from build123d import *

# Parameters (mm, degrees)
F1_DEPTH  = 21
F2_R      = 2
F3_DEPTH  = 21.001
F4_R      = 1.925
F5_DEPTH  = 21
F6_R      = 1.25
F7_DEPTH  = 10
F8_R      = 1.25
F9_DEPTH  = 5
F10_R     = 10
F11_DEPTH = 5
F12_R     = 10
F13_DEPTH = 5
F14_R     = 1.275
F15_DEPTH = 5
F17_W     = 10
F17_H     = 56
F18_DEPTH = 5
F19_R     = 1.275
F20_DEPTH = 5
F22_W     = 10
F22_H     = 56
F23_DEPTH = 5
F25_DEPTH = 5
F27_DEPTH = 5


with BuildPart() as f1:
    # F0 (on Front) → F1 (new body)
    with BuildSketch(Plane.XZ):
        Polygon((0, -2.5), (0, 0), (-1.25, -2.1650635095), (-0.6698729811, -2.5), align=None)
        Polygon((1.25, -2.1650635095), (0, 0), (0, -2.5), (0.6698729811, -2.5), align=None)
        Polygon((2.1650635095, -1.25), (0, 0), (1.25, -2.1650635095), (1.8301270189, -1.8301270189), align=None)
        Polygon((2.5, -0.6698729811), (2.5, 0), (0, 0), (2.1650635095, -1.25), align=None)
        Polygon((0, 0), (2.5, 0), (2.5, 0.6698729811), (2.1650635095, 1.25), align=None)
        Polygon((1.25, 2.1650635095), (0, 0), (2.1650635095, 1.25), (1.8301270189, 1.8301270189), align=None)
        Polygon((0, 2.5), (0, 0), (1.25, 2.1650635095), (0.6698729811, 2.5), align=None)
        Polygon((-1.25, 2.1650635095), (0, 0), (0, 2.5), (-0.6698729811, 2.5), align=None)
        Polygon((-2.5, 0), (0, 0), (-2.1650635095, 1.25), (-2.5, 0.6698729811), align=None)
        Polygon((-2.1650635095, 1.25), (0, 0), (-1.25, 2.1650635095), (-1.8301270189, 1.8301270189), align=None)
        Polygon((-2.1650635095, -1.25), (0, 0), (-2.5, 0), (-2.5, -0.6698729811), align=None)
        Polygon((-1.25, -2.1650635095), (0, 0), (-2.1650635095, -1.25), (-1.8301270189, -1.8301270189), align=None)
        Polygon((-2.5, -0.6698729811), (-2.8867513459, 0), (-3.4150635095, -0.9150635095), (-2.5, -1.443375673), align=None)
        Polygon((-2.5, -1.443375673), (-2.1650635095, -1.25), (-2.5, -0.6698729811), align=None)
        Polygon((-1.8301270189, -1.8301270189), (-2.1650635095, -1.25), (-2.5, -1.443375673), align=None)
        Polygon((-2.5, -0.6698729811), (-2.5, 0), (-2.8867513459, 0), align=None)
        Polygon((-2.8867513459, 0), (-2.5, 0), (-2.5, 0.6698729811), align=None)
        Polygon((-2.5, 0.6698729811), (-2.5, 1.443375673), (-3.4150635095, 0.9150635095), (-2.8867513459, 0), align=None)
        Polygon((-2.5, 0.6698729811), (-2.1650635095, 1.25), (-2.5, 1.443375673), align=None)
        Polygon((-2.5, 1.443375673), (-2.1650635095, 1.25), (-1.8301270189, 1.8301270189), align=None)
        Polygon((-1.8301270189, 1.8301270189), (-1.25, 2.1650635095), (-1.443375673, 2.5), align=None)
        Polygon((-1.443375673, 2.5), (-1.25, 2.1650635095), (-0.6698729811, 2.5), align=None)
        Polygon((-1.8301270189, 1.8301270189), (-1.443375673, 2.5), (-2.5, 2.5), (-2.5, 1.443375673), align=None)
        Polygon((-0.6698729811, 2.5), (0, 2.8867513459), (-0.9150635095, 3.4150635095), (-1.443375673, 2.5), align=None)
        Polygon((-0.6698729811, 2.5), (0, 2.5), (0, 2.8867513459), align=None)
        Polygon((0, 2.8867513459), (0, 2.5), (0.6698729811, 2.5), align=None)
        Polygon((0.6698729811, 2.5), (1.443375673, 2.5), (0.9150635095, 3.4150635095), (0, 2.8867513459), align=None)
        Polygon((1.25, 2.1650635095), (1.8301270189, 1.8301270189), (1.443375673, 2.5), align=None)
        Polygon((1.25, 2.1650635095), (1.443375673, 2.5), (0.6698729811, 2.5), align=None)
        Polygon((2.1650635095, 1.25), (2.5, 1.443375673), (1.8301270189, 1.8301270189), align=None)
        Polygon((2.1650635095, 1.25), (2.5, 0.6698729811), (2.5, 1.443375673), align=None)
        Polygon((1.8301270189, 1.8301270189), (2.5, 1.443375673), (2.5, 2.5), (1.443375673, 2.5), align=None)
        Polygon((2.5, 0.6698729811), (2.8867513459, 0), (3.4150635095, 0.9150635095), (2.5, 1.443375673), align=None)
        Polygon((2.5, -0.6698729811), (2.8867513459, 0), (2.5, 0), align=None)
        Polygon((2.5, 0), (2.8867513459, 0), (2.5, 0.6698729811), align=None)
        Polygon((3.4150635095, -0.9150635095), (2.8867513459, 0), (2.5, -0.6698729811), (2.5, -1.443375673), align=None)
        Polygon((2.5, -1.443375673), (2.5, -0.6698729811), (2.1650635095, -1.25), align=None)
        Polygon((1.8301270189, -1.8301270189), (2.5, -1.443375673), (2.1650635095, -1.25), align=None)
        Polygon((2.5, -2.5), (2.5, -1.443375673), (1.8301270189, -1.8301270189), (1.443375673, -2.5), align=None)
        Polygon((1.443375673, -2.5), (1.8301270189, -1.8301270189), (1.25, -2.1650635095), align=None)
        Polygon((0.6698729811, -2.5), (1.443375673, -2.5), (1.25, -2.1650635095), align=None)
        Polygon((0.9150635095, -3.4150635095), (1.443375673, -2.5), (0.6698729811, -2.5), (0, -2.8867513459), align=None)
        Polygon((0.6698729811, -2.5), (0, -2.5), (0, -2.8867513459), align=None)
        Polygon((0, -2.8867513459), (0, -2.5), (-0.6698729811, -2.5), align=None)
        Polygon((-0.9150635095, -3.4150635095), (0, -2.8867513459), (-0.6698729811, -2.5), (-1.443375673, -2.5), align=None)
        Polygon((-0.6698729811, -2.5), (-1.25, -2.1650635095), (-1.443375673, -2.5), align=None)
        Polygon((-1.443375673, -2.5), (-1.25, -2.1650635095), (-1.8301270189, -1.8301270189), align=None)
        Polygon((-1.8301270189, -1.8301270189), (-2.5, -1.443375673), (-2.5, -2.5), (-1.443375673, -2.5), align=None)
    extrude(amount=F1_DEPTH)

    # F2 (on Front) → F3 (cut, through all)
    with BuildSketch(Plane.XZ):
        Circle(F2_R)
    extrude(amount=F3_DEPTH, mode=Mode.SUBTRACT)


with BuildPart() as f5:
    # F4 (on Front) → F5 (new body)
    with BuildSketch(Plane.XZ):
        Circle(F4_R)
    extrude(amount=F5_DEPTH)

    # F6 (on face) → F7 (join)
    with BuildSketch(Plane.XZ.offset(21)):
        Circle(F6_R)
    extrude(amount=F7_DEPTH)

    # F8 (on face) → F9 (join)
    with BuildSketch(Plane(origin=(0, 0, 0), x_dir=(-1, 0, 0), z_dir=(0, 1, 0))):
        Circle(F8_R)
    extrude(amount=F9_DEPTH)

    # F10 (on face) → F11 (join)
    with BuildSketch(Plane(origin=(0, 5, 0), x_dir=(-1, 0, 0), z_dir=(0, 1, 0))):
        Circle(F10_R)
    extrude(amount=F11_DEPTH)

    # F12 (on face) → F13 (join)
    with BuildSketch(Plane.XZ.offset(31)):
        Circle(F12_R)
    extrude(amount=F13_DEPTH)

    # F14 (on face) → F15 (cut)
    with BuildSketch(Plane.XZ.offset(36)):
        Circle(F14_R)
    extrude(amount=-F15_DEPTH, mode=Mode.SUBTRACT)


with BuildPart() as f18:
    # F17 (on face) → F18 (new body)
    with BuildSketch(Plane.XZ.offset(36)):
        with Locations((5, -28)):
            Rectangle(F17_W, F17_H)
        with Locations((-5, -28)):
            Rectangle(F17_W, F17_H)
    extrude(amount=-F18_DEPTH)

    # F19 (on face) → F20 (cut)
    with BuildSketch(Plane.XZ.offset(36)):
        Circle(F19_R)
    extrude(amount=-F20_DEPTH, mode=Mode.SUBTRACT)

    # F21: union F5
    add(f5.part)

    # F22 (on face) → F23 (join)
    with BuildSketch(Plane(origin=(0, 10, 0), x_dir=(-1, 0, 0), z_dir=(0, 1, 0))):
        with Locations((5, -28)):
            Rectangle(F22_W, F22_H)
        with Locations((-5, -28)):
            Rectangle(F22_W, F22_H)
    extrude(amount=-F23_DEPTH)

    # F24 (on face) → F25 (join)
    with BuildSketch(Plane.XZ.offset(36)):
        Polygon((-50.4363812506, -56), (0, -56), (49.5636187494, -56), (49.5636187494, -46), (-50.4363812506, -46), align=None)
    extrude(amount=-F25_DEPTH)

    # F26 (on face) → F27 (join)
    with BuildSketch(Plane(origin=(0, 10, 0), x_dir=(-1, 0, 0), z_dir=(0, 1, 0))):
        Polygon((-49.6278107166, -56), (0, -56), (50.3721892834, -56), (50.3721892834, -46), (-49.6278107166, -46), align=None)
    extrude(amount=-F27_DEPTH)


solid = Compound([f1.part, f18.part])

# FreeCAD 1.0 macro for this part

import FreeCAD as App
import Part
import Sketcher
Q = App.Units.Quantity


def add_polygon(sketch, points):
    """Adds a closed chain of lines whose ends are joined by coincident constraints."""
    first, n = sketch.GeometryCount, len(points)
    for a, b in zip(points, points[1:] + points[:1]):
        sketch.addGeometry(Part.LineSegment(App.Vector(*a, 0), App.Vector(*b, 0)), False)
    for i in range(n):
        sketch.addConstraint(Sketcher.Constraint("Coincident", first + i, 2, first + (i + 1) % n, 1))

doc = App.newDocument("Part")
body = doc.addObject("PartDesign::Body", "Body")

# Sketch on XZ plane
sketch1 = doc.addObject("Sketcher::SketchObject", "Sketch")
body.addObject(sketch1)
sketch1.AttachmentSupport = (doc.XZ_Plane, [""])
sketch1.MapMode = "FlatFace"
add_polygon(sketch1, [(2.9, 0), (3.4, 0.9), (2.5, 1.4), (2.5, 2.5), (1.4, 2.5), (0.9, 3.4), (0, 2.9), (-0.9, 3.4), (-1.4, 2.5), (-2.5, 2.5), (-2.5, 1.4), (-3.4, 0.9), (-2.9, 0), (-3.4, -0.9), (-2.5, -1.4), (-2.5, -2.5), (-1.4, -2.5), (-0.9, -3.4), (0, -2.9), (0.9, -3.4), (1.4, -2.5), (2.5, -2.5), (2.5, -1.4), (3.4, -0.9)])  # lines 0-23
sketch1.addConstraint(Sketcher.Constraint("Vertical", 2))
sketch1.addConstraint(Sketcher.Constraint("Horizontal", 3))
sketch1.addConstraint(Sketcher.Constraint("Horizontal", 8))
sketch1.addConstraint(Sketcher.Constraint("Vertical", 9))
sketch1.addConstraint(Sketcher.Constraint("Vertical", 14))
sketch1.addConstraint(Sketcher.Constraint("Horizontal", 15))
sketch1.addConstraint(Sketcher.Constraint("Horizontal", 20))
sketch1.addConstraint(Sketcher.Constraint("Vertical", 21))
sketch1.addConstraint(Sketcher.Constraint("Symmetric", 0, 2, 12, 2, -1, 1))
sketch1.addConstraint(Sketcher.Constraint("Symmetric", 1, 2, 13, 2, -1, 1))
sketch1.addConstraint(Sketcher.Constraint("Symmetric", 3, 2, 15, 2, -1, 1))
sketch1.addConstraint(Sketcher.Constraint("Symmetric", 4, 2, 16, 2, -1, 1))
sketch1.addConstraint(Sketcher.Constraint("Symmetric", 5, 2, 17, 2, -1, 1))
sketch1.addConstraint(Sketcher.Constraint("Symmetric", 6, 2, 18, 2, -1, 1))
sketch1.addConstraint(Sketcher.Constraint("Symmetric", 7, 2, 19, 2, -1, 1))
sketch1.addConstraint(Sketcher.Constraint("Symmetric", 9, 2, 21, 2, -1, 1))
sketch1.addConstraint(Sketcher.Constraint("Symmetric", 10, 2, 22, 2, -1, 1))
sketch1.addConstraint(Sketcher.Constraint("Symmetric", 11, 2, 23, 2, -1, 1))
sketch1.addConstraint(Sketcher.Constraint("Symmetric", 4, 2, 6, 2, -2))
sketch1.addConstraint(Sketcher.Constraint("Symmetric", 3, 2, 7, 2, -2))
sketch1.addConstraint(Sketcher.Constraint("Symmetric", 1, 2, 9, 2, -2))
sketch1.addConstraint(Sketcher.Constraint("Symmetric", 0, 2, 10, 2, -2))
sketch1.addConstraint(Sketcher.Constraint("PointOnObject", 5, 2, -2))
sketch1.addConstraint(Sketcher.Constraint("PointOnObject", 11, 2, -1))
sketch1.addConstraint(Sketcher.Constraint("Perpendicular", 0, 1))
sketch1.addConstraint(Sketcher.Constraint("Perpendicular", 4, 5))
sketch1.addConstraint(Sketcher.Constraint("Parallel", 1, 6))
sketch1.addConstraint(Sketcher.Constraint("Equal", 20, 2))
sketch1.addConstraint(Sketcher.Constraint("Equal", 0, 1))
sketch1.addConstraint(Sketcher.Constraint("Equal", 1, 4))
sketch1.addConstraint(Sketcher.Constraint("Equal", 4, 5))
sketch1.addConstraint(Sketcher.Constraint("Angle", 0, Q("60 deg")))
sketch1.addConstraint(Sketcher.Constraint("DistanceX", -1, 1, 1, 2, Q("2.5 mm")))
sketch1.addConstraint(Sketcher.Constraint("DistanceX", 3, 2, 3, 1, Q("1.056624 mm")))
pad1 = doc.addObject("PartDesign::Pad", "Pad")
body.addObject(pad1)
pad1.Profile = sketch1
pad1.Length = 21

# Sketch on XZ plane
sketch2 = doc.addObject("Sketcher::SketchObject", "Sketch001")
body.addObject(sketch2)
sketch2.AttachmentSupport = (doc.XZ_Plane, [""])
sketch2.MapMode = "FlatFace"
sketch2.addGeometry(Part.Circle(App.Vector(0, 0, 0), App.Vector(0, 0, 1), 2), False)
sketch2.addConstraint(Sketcher.Constraint("Coincident", 0, 3, -1, 1))
sketch2.addConstraint(Sketcher.Constraint("Diameter", 0, Q("4 mm")))
pocket1 = doc.addObject("PartDesign::Pocket", "Pocket")
body.addObject(pocket1)
pocket1.Profile = sketch2
pocket1.Type = "ThroughAll"
pocket1.Reversed = True
body2 = doc.addObject("PartDesign::Body", "Body001")
body2.AllowCompound = True

# Sketch on XZ plane
sketch3 = doc.addObject("Sketcher::SketchObject", "Sketch002")
body2.addObject(sketch3)
sketch3.AttachmentSupport = (doc.getObject("XZ_Plane001"), [""])
sketch3.MapMode = "FlatFace"
sketch3.addGeometry(Part.Circle(App.Vector(0, 0, 0), App.Vector(0, 0, 1), 1.9), False)
sketch3.addConstraint(Sketcher.Constraint("Coincident", 0, 3, -1, 1))
sketch3.addConstraint(Sketcher.Constraint("Diameter", 0, Q("3.85 mm")))
pad2 = doc.addObject("PartDesign::Pad", "Pad001")
body2.addObject(pad2)
pad2.Profile = sketch3
pad2.Length = 21

# Sketch on XZ plane
sketch4 = doc.addObject("Sketcher::SketchObject", "Sketch003")
body2.addObject(sketch4)
sketch4.AttachmentSupport = (doc.getObject("XZ_Plane001"), [""])
sketch4.MapMode = "FlatFace"
sketch4.AttachmentOffset = App.Placement(App.Vector(0, 0, 21), App.Rotation())
sketch4.addGeometry(Part.Circle(App.Vector(0, 0, 0), App.Vector(0, 0, 1), 1.2), False)
sketch4.addConstraint(Sketcher.Constraint("Coincident", 0, 3, -1, 1))
sketch4.addConstraint(Sketcher.Constraint("Diameter", 0, Q("2.5 mm")))
pad3 = doc.addObject("PartDesign::Pad", "Pad002")
body2.addObject(pad3)
pad3.Profile = sketch4
pad3.Length = 10

# Sketch on XZ plane
sketch5 = doc.addObject("Sketcher::SketchObject", "Sketch004")
body2.addObject(sketch5)
sketch5.AttachmentSupport = (doc.getObject("XZ_Plane001"), [""])
sketch5.MapMode = "FlatFace"
sketch5.addGeometry(Part.Circle(App.Vector(0, 0, 0), App.Vector(0, 0, 1), 1.2), False)
sketch5.addConstraint(Sketcher.Constraint("Coincident", 0, 3, -1, 1))
sketch5.addConstraint(Sketcher.Constraint("Diameter", 0, Q("2.5 mm")))
pad4 = doc.addObject("PartDesign::Pad", "Pad003")
body2.addObject(pad4)
pad4.Profile = sketch5
pad4.Length = 5
pad4.Reversed = True

# Sketch on XZ plane
sketch6 = doc.addObject("Sketcher::SketchObject", "Sketch005")
body2.addObject(sketch6)
sketch6.AttachmentSupport = (doc.getObject("XZ_Plane001"), [""])
sketch6.MapMode = "FlatFace"
sketch6.AttachmentOffset = App.Placement(App.Vector(0, 0, -5), App.Rotation())
sketch6.addGeometry(Part.Circle(App.Vector(0, 0, 0), App.Vector(0, 0, 1), 10), False)
sketch6.addConstraint(Sketcher.Constraint("Coincident", 0, 3, -1, 1))
sketch6.addConstraint(Sketcher.Constraint("Diameter", 0, Q("20 mm")))
pad5 = doc.addObject("PartDesign::Pad", "Pad004")
body2.addObject(pad5)
pad5.Profile = sketch6
pad5.Length = 5
pad5.Reversed = True

# Sketch on XZ plane
sketch7 = doc.addObject("Sketcher::SketchObject", "Sketch006")
body2.addObject(sketch7)
sketch7.AttachmentSupport = (doc.getObject("XZ_Plane001"), [""])
sketch7.MapMode = "FlatFace"
sketch7.AttachmentOffset = App.Placement(App.Vector(0, 0, 31), App.Rotation())
sketch7.addGeometry(Part.Circle(App.Vector(0, 0, 0), App.Vector(0, 0, 1), 10), False)
sketch7.addConstraint(Sketcher.Constraint("Coincident", 0, 3, -1, 1))
sketch7.addConstraint(Sketcher.Constraint("Diameter", 0, Q("20 mm")))
pad6 = doc.addObject("PartDesign::Pad", "Pad005")
body2.addObject(pad6)
pad6.Profile = sketch7
pad6.Length = 5

# Sketch on XZ plane
sketch8 = doc.addObject("Sketcher::SketchObject", "Sketch007")
body2.addObject(sketch8)
sketch8.AttachmentSupport = (doc.getObject("XZ_Plane001"), [""])
sketch8.MapMode = "FlatFace"
sketch8.AttachmentOffset = App.Placement(App.Vector(0, 0, 36), App.Rotation())
sketch8.addGeometry(Part.Circle(App.Vector(0, 0, 0), App.Vector(0, 0, 1), 1.3), False)
sketch8.addConstraint(Sketcher.Constraint("Coincident", 0, 3, -1, 1))
sketch8.addConstraint(Sketcher.Constraint("Diameter", 0, Q("2.55 mm")))
pocket2 = doc.addObject("PartDesign::Pocket", "Pocket001")
body2.addObject(pocket2)
pocket2.Profile = sketch8
pocket2.Length = 5
body3 = doc.addObject("PartDesign::Body", "Body002")
body3.AllowCompound = True

# Sketch on XZ plane
sketch9 = doc.addObject("Sketcher::SketchObject", "Sketch008")
body3.addObject(sketch9)
sketch9.AttachmentSupport = (doc.getObject("XZ_Plane002"), [""])
sketch9.MapMode = "FlatFace"
sketch9.AttachmentOffset = App.Placement(App.Vector(0, 0, 36), App.Rotation())
add_polygon(sketch9, [(10, -56), (10, 0), (-10, 0), (-10, -56)])  # lines 0-3
sketch9.addConstraint(Sketcher.Constraint("Vertical", 0))
sketch9.addConstraint(Sketcher.Constraint("Horizontal", 1))
sketch9.addConstraint(Sketcher.Constraint("Vertical", 2))
sketch9.addConstraint(Sketcher.Constraint("Horizontal", 3))
sketch9.addConstraint(Sketcher.Constraint("Symmetric", 0, 2, 1, 2, -1, 1))
sketch9.addConstraint(Sketcher.Constraint("DistanceX", 1, 2, 1, 1, Q("20 mm")))
sketch9.addConstraint(Sketcher.Constraint("DistanceY", 0, 1, 0, 2, Q("56 mm")))
pad7 = doc.addObject("PartDesign::Pad", "Pad006")
body3.addObject(pad7)
pad7.Profile = sketch9
pad7.Length = 5
pad7.Reversed = True

# Sketch on XZ plane
sketch10 = doc.addObject("Sketcher::SketchObject", "Sketch009")
body3.addObject(sketch10)
sketch10.AttachmentSupport = (doc.getObject("XZ_Plane002"), [""])
sketch10.MapMode = "FlatFace"
sketch10.AttachmentOffset = App.Placement(App.Vector(0, 0, 36), App.Rotation())
sketch10.addGeometry(Part.Circle(App.Vector(0, 0, 0), App.Vector(0, 0, 1), 1.3), False)
sketch10.addConstraint(Sketcher.Constraint("Coincident", 0, 3, -1, 1))
sketch10.addConstraint(Sketcher.Constraint("Diameter", 0, Q("2.55 mm")))
pocket3 = doc.addObject("PartDesign::Pocket", "Pocket002")
body3.addObject(pocket3)
pocket3.Profile = sketch10
pocket3.Length = 5
doc.recompute()

boolean = doc.addObject("PartDesign::Boolean", "Boolean")
body3.addObject(boolean)
boolean.Type = "Fuse"
boolean.addObjects([body2])

# Sketch on XZ plane
sketch11 = doc.addObject("Sketcher::SketchObject", "Sketch010")
body3.addObject(sketch11)
sketch11.AttachmentSupport = (doc.getObject("XZ_Plane002"), [""])
sketch11.MapMode = "FlatFace"
sketch11.AttachmentOffset = App.Placement(App.Vector(0, 0, -10), App.Rotation())
add_polygon(sketch11, [(-10, -56), (-10, 0), (10, 0), (10, -56)])  # lines 0-3
sketch11.addConstraint(Sketcher.Constraint("Vertical", 0))
sketch11.addConstraint(Sketcher.Constraint("Horizontal", 1))
sketch11.addConstraint(Sketcher.Constraint("Vertical", 2))
sketch11.addConstraint(Sketcher.Constraint("Horizontal", 3))
sketch11.addConstraint(Sketcher.Constraint("Symmetric", 0, 2, 1, 2, -1, 1))
sketch11.addConstraint(Sketcher.Constraint("DistanceX", 1, 1, 1, 2, Q("20 mm")))
sketch11.addConstraint(Sketcher.Constraint("DistanceY", 0, 1, 0, 2, Q("56 mm")))
pad8 = doc.addObject("PartDesign::Pad", "Pad007")
body3.addObject(pad8)
pad8.Profile = sketch11
pad8.Length = 5

# Sketch on XZ plane
sketch12 = doc.addObject("Sketcher::SketchObject", "Sketch011")
body3.addObject(sketch12)
sketch12.AttachmentSupport = (doc.getObject("XZ_Plane002"), [""])
sketch12.MapMode = "FlatFace"
sketch12.AttachmentOffset = App.Placement(App.Vector(0, 0, 36), App.Rotation())
add_polygon(sketch12, [(-50, -56), (50, -56), (50, -46), (-50, -46)])  # lines 0-3
sketch12.addConstraint(Sketcher.Constraint("Horizontal", 0))
sketch12.addConstraint(Sketcher.Constraint("Vertical", 1))
sketch12.addConstraint(Sketcher.Constraint("Horizontal", 2))
sketch12.addConstraint(Sketcher.Constraint("Vertical", 3))
sketch12.addConstraint(Sketcher.Constraint("DistanceX", 0, 1, 0, 2, Q("100 mm")))
sketch12.addConstraint(Sketcher.Constraint("DistanceY", 1, 1, 1, 2, Q("10 mm")))
sketch12.addConstraint(Sketcher.Constraint("DistanceY", 0, 2, -1, 1, Q("56 mm")))
sketch12.addConstraint(Sketcher.Constraint("DistanceX", -1, 1, 0, 2, Q("49.563619 mm")))
pad9 = doc.addObject("PartDesign::Pad", "Pad008")
body3.addObject(pad9)
pad9.Profile = sketch12
pad9.Length = 5
pad9.Reversed = True

# Sketch on XZ plane
sketch13 = doc.addObject("Sketcher::SketchObject", "Sketch012")
body3.addObject(sketch13)
sketch13.AttachmentSupport = (doc.getObject("XZ_Plane002"), [""])
sketch13.MapMode = "FlatFace"
sketch13.AttachmentOffset = App.Placement(App.Vector(0, 0, -10), App.Rotation())
add_polygon(sketch13, [(50, -56), (-50, -56), (-50, -46), (50, -46)])  # lines 0-3
sketch13.addConstraint(Sketcher.Constraint("Horizontal", 0))
sketch13.addConstraint(Sketcher.Constraint("Vertical", 1))
sketch13.addConstraint(Sketcher.Constraint("Horizontal", 2))
sketch13.addConstraint(Sketcher.Constraint("Vertical", 3))
sketch13.addConstraint(Sketcher.Constraint("DistanceX", 0, 2, 0, 1, Q("100 mm")))
sketch13.addConstraint(Sketcher.Constraint("DistanceY", 1, 1, 1, 2, Q("10 mm")))
sketch13.addConstraint(Sketcher.Constraint("DistanceY", 0, 2, -1, 1, Q("56 mm")))
sketch13.addConstraint(Sketcher.Constraint("DistanceX", 0, 2, -1, 1, Q("50.372189 mm")))
pad10 = doc.addObject("PartDesign::Pad", "Pad009")
body3.addObject(pad10)
pad10.Profile = sketch13
pad10.Length = 5

doc.recompute()
